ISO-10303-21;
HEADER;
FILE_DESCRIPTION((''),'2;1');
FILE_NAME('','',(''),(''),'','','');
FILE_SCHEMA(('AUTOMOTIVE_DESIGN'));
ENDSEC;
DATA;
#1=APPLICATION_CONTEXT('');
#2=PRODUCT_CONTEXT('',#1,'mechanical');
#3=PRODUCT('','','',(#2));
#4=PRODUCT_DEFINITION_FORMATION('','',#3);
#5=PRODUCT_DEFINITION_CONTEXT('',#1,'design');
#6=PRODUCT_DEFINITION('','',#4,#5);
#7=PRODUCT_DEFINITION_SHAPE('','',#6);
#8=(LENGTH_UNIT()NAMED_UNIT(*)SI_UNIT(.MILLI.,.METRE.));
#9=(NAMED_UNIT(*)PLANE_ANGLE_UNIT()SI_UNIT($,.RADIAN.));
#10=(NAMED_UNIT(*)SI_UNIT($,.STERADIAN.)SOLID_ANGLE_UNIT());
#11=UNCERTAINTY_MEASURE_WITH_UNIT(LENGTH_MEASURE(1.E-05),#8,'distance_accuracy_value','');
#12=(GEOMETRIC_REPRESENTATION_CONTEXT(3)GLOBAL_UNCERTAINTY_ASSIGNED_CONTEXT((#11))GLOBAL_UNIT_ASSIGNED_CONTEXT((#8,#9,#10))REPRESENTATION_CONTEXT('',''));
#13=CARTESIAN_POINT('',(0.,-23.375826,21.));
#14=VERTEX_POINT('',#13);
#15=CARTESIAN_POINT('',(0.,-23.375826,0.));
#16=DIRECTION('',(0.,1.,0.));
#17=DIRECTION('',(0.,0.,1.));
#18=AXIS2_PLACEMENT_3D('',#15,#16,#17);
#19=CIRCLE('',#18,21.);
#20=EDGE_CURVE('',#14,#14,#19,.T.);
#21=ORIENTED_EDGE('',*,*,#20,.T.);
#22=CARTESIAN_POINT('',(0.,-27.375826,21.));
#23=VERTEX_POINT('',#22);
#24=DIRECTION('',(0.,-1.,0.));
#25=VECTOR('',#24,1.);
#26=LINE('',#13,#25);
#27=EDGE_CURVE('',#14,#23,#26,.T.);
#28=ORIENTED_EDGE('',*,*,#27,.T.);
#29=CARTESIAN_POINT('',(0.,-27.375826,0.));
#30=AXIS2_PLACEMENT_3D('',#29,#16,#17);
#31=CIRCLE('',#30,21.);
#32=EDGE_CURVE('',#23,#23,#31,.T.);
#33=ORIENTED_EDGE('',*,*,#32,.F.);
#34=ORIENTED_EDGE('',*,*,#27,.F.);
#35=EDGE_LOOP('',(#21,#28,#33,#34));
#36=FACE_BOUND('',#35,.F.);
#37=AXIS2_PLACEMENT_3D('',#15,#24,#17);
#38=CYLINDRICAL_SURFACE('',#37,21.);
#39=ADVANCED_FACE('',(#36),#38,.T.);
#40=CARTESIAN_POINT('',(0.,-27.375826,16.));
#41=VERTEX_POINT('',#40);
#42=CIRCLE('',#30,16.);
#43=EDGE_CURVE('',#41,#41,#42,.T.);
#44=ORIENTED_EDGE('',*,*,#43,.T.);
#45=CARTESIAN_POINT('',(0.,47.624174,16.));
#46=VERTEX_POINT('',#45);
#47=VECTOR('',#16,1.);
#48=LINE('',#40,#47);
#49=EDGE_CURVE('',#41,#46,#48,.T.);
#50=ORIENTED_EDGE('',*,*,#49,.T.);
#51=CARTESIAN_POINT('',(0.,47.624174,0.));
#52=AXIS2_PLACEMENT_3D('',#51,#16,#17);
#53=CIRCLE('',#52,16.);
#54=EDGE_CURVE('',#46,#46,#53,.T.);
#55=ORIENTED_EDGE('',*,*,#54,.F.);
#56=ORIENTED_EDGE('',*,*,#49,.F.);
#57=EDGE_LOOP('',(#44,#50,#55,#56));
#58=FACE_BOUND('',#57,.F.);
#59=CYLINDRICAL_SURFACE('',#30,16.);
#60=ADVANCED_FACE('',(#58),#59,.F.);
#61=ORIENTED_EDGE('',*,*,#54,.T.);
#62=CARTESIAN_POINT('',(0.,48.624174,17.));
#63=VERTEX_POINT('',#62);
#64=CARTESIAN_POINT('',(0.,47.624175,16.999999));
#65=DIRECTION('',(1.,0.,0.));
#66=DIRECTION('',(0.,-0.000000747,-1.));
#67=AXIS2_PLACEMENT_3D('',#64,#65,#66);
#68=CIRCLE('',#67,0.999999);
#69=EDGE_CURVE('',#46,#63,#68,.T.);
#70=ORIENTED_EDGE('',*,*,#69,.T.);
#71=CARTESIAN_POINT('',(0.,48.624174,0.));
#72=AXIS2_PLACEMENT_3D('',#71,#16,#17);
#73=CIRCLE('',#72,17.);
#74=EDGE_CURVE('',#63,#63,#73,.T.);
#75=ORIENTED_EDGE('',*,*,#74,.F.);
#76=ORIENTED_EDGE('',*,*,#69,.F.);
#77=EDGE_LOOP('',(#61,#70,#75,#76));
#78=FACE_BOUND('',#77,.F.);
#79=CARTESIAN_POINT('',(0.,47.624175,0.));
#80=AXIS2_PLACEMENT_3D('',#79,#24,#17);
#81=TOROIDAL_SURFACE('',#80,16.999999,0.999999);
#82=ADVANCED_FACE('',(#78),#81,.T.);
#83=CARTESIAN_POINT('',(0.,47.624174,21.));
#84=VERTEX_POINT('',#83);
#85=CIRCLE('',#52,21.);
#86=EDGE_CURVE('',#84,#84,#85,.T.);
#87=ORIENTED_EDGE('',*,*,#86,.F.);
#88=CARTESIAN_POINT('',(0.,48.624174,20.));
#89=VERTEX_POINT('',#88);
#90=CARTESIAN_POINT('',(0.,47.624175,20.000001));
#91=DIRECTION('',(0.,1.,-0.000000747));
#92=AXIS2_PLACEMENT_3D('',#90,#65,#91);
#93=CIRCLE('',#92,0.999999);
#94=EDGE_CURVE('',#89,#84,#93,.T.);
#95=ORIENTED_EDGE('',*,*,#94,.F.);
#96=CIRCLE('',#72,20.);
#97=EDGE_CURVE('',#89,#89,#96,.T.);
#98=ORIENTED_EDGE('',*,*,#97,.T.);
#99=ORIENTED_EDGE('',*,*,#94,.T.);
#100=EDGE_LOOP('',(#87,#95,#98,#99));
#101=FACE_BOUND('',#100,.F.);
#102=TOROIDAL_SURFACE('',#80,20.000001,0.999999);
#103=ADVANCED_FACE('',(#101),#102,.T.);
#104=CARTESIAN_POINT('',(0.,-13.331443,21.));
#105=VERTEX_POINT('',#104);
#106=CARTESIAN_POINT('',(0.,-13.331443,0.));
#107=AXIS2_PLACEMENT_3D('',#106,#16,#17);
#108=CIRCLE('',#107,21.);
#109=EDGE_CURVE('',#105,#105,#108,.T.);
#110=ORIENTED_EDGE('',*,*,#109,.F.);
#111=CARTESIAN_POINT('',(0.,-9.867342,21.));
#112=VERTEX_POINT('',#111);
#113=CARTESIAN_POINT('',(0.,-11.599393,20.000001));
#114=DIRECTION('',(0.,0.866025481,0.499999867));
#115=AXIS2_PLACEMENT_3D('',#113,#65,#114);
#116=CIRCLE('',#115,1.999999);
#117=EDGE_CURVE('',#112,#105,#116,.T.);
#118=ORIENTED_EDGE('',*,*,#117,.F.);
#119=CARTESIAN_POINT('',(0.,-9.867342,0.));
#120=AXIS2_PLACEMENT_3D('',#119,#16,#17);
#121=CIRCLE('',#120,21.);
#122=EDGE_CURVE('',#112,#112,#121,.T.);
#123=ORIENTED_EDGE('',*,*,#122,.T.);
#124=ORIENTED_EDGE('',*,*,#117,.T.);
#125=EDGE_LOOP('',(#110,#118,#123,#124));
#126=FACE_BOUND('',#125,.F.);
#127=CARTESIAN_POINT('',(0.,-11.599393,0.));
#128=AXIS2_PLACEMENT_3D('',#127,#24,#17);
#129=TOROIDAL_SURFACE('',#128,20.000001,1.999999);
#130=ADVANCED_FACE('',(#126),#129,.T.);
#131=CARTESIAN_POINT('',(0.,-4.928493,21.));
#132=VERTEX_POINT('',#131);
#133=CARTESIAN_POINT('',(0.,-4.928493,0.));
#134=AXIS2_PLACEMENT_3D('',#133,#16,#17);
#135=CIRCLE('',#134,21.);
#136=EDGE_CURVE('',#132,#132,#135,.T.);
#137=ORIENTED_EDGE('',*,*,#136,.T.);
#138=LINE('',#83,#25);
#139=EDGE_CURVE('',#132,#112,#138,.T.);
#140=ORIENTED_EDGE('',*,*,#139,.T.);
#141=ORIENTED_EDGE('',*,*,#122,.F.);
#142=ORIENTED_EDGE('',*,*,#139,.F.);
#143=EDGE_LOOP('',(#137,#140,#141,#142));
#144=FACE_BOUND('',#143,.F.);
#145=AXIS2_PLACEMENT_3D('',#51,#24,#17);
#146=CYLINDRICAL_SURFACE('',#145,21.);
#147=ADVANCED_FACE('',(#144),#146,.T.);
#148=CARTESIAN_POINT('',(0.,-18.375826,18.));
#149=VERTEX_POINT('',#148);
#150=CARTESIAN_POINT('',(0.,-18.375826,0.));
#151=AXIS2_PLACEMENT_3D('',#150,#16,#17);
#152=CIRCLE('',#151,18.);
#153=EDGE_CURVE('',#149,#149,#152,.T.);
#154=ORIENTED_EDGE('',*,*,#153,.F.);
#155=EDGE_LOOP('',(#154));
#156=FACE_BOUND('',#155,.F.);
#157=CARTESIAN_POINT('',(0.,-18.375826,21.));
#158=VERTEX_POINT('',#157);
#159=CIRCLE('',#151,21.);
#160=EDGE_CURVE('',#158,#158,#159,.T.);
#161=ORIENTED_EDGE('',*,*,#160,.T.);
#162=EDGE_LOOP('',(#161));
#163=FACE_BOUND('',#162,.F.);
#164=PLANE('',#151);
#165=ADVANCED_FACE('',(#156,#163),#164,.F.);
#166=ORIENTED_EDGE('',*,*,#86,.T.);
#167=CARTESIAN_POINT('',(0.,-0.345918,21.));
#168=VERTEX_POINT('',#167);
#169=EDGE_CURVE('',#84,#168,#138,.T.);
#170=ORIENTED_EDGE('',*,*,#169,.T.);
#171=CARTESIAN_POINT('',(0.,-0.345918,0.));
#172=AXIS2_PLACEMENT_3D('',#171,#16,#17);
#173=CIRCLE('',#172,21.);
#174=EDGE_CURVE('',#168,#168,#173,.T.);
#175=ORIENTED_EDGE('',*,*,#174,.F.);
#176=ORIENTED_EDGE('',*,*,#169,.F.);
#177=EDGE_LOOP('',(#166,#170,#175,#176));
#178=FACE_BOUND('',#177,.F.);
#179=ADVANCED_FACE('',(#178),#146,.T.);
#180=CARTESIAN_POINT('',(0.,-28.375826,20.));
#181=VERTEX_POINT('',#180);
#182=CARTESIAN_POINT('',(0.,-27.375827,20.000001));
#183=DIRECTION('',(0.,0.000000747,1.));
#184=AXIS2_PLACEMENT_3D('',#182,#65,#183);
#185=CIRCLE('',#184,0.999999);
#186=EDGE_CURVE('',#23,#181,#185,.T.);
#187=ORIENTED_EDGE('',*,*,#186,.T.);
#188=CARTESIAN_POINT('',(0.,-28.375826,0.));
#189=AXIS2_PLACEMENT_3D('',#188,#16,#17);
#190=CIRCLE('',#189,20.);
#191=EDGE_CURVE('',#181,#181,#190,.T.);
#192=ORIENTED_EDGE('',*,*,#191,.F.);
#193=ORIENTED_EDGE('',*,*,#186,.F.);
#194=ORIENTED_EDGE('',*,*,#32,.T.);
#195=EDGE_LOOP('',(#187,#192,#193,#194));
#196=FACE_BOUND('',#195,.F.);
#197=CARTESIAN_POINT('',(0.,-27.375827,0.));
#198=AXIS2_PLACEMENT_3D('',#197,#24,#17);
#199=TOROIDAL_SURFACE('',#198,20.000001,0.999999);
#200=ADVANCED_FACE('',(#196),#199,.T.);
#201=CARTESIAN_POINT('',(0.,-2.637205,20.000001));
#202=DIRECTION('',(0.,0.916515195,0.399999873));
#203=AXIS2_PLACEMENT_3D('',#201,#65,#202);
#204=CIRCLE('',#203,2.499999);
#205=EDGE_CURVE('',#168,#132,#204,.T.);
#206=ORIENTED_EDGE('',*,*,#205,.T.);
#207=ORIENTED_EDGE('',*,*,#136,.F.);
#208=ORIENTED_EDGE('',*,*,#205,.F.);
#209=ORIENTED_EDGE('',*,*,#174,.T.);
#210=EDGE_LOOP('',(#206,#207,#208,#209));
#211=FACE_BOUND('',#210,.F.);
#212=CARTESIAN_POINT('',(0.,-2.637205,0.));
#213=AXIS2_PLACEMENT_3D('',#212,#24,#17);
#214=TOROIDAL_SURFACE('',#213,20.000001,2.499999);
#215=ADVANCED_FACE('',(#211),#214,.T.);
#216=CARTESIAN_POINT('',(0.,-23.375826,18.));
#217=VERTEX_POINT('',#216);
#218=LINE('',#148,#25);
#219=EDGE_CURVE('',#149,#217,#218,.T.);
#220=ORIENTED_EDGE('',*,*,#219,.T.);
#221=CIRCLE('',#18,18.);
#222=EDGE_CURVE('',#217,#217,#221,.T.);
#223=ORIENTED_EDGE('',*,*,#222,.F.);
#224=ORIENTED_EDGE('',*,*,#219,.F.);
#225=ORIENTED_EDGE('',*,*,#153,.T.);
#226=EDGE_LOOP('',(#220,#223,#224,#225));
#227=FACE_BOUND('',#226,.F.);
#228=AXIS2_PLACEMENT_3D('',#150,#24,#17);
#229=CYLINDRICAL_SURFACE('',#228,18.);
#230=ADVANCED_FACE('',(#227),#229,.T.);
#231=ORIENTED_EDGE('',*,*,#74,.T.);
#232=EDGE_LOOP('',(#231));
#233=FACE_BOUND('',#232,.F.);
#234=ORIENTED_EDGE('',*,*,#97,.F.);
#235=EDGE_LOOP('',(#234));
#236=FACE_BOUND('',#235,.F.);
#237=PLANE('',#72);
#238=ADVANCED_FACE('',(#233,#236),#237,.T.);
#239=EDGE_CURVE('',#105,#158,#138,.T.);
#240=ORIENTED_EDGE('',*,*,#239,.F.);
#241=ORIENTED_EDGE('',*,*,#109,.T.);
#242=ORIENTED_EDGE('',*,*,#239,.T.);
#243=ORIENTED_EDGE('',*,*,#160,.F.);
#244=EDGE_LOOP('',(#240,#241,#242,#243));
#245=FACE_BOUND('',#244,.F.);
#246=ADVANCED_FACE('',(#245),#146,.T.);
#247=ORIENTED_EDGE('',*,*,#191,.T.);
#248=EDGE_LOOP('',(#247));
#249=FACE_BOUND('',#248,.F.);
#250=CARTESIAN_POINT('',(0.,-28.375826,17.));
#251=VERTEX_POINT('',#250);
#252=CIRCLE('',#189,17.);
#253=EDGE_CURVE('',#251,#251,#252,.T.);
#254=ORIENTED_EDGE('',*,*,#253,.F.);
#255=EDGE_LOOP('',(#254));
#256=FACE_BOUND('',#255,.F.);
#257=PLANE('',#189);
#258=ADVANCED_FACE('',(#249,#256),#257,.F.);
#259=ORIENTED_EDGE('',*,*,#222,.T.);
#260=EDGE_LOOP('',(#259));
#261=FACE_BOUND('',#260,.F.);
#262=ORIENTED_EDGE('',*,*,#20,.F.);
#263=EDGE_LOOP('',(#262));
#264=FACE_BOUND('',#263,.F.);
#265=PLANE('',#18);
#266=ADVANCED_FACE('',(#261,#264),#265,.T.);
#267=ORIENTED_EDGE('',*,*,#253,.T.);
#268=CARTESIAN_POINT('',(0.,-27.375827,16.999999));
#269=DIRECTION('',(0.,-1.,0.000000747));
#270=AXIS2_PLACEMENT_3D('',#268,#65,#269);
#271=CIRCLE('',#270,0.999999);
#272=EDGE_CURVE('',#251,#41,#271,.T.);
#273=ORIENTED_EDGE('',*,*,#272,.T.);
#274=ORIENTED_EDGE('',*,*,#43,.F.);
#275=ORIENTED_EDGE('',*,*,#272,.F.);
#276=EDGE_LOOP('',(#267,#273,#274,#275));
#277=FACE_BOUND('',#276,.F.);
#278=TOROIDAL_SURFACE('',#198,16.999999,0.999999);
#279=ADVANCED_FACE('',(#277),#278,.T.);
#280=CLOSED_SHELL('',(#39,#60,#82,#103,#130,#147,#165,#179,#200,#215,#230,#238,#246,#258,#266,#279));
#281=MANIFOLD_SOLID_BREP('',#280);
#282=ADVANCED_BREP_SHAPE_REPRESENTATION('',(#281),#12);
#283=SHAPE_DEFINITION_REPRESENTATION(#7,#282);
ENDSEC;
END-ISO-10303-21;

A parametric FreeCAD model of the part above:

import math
import FreeCAD as App
import Part
import Sketcher

doc = App.newDocument("Part")
body = doc.addObject("PartDesign::Body", "Body")

# Sketch on YZ plane
sketch1 = body.newObject("Sketcher::SketchObject", "Sketch")
sketch1.AttachmentSupport = (doc.getObject("YZ_Plane"), [""])
sketch1.MapMode = "FlatFace"
sketch1.addGeometry([
    Part.LineSegment(App.Vector(-23.4, 21, 0), App.Vector(-27.4, 21, 0)),  # 0
    Part.ArcOfCircle(Part.Circle(App.Vector(-27.4, 20, 0), App.Vector(0, 0, 1), 1), math.radians(90), math.radians(180)),  # 1
    Part.LineSegment(App.Vector(-28.4, 20, 0), App.Vector(-28.4, 17, 0)),  # 2
    Part.ArcOfCircle(Part.Circle(App.Vector(-27.4, 17, 0), App.Vector(0, 0, 1), 1), math.radians(180), math.radians(270)),  # 3
    Part.LineSegment(App.Vector(-27.4, 16, 0), App.Vector(47.6, 16, 0)),  # 4
    Part.ArcOfCircle(Part.Circle(App.Vector(47.6, 17, 0), App.Vector(0, 0, 1), 1), math.radians(-90), math.radians(0)),  # 5
    Part.LineSegment(App.Vector(48.6, 17, 0), App.Vector(48.6, 20, 0)),  # 6
    Part.ArcOfCircle(Part.Circle(App.Vector(47.6, 20, 0), App.Vector(0, 0, 1), 1), math.radians(0), math.radians(90)),  # 7
    Part.LineSegment(App.Vector(47.6, 21, 0), App.Vector(-0.3, 21, 0)),  # 8
    Part.ArcOfCircle(Part.Circle(App.Vector(-2.6, 20, 0), App.Vector(0, 0, 1), 2.5), math.radians(24), math.radians(156)),  # 9
    Part.LineSegment(App.Vector(-4.9, 21, 0), App.Vector(-9.9, 21, 0)),  # 10
    Part.ArcOfCircle(Part.Circle(App.Vector(-11.6, 20, 0), App.Vector(0, 0, 1), 2), math.radians(30), math.radians(150)),  # 11
    Part.LineSegment(App.Vector(-13.3, 21, 0), App.Vector(-18.4, 21, 0)),  # 12
    Part.LineSegment(App.Vector(-18.4, 21, 0), App.Vector(-18.4, 18, 0)),  # 13
    Part.LineSegment(App.Vector(-18.4, 18, 0), App.Vector(-23.4, 18, 0)),  # 14
    Part.LineSegment(App.Vector(-23.4, 18, 0), App.Vector(-23.4, 21, 0)),  # 15
], False)
sketch1.addConstraint([
    Sketcher.Constraint("Tangent", 0, 2, 1, 1),
    Sketcher.Constraint("Tangent", 1, 2, 2, 1),
    Sketcher.Constraint("Tangent", 2, 2, 3, 1),
    Sketcher.Constraint("Tangent", 3, 2, 4, 1),
    Sketcher.Constraint("Tangent", 4, 2, 5, 1),
    Sketcher.Constraint("Tangent", 5, 2, 6, 1),
    Sketcher.Constraint("Tangent", 6, 2, 7, 1),
    Sketcher.Constraint("Tangent", 7, 2, 8, 1),
    Sketcher.Constraint("Coincident", 8, 2, 9, 1),
    Sketcher.Constraint("Coincident", 9, 2, 10, 1),
    Sketcher.Constraint("Coincident", 10, 2, 11, 1),
    Sketcher.Constraint("Coincident", 11, 2, 12, 1),
    Sketcher.Constraint("Coincident", 12, 2, 13, 1),
    Sketcher.Constraint("Coincident", 13, 2, 14, 1),
    Sketcher.Constraint("Coincident", 14, 2, 15, 1),
    Sketcher.Constraint("Coincident", 15, 2, 0, 1),
    Sketcher.Constraint("Horizontal", 0),
    Sketcher.Constraint("Vertical", 2),
    Sketcher.Constraint("Horizontal", 4),
    Sketcher.Constraint("Vertical", 6),
    Sketcher.Constraint("Horizontal", 8),
    Sketcher.Constraint("Horizontal", 10),
    Sketcher.Constraint("Horizontal", 12),
    Sketcher.Constraint("Vertical", 13),
    Sketcher.Constraint("Horizontal", 14),
    Sketcher.Constraint("Vertical", 15),
    Sketcher.Constraint("Equal", 1, 3),
    Sketcher.Constraint("Equal", 3, 5),
    Sketcher.Constraint("Equal", 5, 7),
    Sketcher.Constraint("Horizontal", 1, 3, 7, 3),
    Sketcher.Constraint("Horizontal", 7, 3, 9, 3),
    Sketcher.Constraint("Horizontal", 9, 3, 11, 3),
    Sketcher.Constraint("Horizontal", 8, 2, 9, 2),
    Sketcher.Constraint("Horizontal", 10, 2, 11, 2),
    Sketcher.Constraint("Equal", 6, 13),
    Sketcher.Constraint("Radius", 1, 0.999999),
    Sketcher.Constraint("Radius", 11, 1.999999),
    Sketcher.Constraint("Radius", 9, 2.499999),
    Sketcher.Constraint("DistanceX", 0, 2, 0, 1, 4.0),
    Sketcher.Constraint("DistanceX", 4, 1, 4, 2, 75.0),
    Sketcher.Constraint("DistanceX", 14, 2, 14, 1, 5.0),
    Sketcher.Constraint("DistanceY", 2, 2, 2, 1, 3.0),
    Sketcher.Constraint("DistanceY", -1, 1, 1, 3, 20.000001),
    Sketcher.Constraint("DistanceX", 8, 2, 8, 1, 47.970092),
    Sketcher.Constraint("DistanceX", 10, 2, 10, 1, 4.938849),
    Sketcher.Constraint("DistanceX", 1, 3, -1, 1, 27.375827),
])
revolution = body.newObject("PartDesign::Revolution", "Revolution")
revolution.Profile = sketch1
revolution.ReferenceAxis = (sketch1, ["H_Axis"])
revolution.Angle = 360

doc.recompute()
